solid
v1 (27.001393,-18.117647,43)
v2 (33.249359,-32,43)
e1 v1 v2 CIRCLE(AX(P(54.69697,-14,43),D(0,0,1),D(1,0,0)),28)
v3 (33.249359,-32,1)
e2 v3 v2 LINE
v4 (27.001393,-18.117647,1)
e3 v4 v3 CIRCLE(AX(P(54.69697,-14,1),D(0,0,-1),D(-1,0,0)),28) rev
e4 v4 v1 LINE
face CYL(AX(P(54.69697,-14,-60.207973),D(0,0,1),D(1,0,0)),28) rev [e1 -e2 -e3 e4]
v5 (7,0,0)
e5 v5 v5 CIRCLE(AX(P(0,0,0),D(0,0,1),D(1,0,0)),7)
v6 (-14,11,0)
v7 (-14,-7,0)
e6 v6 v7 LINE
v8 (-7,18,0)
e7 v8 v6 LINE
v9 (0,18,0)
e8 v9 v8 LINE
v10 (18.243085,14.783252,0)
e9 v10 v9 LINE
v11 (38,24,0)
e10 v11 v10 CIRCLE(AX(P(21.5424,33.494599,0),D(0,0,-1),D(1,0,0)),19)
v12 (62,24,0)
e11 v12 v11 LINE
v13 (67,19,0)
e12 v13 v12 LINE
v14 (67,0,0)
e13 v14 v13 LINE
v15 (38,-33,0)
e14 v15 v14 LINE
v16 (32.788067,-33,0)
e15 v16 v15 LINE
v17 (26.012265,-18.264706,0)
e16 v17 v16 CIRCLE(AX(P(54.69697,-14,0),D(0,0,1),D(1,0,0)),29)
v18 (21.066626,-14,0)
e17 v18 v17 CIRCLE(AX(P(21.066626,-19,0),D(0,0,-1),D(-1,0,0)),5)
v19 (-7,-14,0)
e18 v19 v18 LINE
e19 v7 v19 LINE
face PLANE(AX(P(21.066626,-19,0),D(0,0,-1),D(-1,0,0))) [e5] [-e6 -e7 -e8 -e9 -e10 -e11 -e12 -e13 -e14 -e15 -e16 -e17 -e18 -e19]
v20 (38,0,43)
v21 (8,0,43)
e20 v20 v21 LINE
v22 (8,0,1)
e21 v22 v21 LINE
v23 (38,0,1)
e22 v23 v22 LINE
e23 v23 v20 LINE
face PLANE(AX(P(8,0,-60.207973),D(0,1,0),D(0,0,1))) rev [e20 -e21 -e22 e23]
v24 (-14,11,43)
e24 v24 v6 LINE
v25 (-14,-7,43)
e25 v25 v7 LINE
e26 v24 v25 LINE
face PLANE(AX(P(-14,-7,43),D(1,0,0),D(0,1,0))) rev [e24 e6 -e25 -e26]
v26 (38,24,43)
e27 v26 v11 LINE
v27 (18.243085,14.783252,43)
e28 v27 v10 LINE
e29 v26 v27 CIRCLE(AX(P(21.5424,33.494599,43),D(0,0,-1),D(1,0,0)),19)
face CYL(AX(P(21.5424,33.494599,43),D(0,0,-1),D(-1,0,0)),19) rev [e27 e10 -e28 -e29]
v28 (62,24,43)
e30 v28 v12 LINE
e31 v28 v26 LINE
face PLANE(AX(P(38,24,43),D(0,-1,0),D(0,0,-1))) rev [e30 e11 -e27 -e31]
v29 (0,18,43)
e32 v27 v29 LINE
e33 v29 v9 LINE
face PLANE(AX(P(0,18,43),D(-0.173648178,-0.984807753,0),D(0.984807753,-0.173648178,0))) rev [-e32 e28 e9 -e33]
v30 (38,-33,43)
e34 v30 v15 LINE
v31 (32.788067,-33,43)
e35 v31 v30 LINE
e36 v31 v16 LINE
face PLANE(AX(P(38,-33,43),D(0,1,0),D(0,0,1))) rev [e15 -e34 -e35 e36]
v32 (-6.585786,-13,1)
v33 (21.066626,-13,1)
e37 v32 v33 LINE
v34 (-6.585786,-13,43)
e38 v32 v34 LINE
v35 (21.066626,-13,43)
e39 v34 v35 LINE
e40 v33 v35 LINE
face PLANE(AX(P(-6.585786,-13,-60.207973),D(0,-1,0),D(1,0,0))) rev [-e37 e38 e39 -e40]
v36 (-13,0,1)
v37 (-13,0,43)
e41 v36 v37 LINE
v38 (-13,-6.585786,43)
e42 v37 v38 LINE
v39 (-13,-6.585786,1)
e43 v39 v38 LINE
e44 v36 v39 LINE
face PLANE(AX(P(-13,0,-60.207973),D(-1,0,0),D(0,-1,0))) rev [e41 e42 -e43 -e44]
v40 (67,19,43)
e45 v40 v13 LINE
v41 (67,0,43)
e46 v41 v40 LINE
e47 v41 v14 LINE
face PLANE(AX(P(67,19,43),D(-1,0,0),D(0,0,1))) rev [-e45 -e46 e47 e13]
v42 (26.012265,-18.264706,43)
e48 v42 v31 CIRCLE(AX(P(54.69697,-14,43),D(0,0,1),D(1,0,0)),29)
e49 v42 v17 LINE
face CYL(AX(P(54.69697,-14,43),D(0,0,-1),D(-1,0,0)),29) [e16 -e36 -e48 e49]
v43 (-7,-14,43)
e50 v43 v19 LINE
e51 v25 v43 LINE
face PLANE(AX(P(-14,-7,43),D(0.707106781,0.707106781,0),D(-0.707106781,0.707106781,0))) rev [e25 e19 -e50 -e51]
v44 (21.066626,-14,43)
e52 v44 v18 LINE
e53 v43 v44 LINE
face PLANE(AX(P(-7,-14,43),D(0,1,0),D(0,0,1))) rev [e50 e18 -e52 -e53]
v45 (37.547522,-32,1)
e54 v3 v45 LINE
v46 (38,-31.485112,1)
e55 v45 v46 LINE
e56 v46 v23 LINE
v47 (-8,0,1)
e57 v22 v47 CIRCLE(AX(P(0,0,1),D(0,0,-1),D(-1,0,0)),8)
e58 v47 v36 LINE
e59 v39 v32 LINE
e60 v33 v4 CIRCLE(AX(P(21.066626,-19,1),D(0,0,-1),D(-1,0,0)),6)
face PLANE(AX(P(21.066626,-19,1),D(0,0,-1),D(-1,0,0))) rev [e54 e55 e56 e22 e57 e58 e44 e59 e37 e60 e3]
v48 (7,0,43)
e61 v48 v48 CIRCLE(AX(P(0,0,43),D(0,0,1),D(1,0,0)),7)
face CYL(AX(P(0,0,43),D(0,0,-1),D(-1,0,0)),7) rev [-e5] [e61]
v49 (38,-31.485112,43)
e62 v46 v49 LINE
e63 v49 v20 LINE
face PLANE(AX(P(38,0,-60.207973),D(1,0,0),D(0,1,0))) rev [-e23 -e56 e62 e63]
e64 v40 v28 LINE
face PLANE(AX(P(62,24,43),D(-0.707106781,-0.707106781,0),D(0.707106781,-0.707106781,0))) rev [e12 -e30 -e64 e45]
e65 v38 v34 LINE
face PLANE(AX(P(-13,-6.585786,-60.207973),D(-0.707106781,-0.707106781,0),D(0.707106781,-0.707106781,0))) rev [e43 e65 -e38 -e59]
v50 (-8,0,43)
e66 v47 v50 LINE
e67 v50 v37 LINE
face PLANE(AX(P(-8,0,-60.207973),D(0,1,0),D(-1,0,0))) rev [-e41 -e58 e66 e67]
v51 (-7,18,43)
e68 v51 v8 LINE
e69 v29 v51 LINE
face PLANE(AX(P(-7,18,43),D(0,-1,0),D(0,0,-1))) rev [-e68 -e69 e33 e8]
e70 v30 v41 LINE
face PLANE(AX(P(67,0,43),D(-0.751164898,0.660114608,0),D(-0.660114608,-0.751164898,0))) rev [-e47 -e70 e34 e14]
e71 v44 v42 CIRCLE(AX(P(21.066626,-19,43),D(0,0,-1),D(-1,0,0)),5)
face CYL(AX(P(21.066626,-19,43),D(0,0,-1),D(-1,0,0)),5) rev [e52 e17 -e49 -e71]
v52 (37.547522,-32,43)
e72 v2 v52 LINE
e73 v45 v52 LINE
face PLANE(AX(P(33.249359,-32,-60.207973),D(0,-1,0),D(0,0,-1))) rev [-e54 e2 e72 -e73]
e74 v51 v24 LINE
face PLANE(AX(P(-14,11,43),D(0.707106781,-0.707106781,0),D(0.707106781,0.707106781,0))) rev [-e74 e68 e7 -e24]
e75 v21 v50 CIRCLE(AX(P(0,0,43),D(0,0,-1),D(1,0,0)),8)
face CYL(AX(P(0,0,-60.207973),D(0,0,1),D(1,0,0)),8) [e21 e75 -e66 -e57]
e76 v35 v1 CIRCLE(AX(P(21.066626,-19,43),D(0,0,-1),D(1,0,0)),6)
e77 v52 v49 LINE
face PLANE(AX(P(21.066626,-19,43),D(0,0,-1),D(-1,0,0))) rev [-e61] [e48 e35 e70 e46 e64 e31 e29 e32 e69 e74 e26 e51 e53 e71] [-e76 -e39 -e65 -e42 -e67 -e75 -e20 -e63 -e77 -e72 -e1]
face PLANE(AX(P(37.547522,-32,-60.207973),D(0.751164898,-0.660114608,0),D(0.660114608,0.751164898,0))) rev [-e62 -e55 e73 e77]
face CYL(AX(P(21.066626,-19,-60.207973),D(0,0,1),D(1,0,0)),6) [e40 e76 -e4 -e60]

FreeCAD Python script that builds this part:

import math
import FreeCAD as App
import Part
import Sketcher
Q = App.Units.Quantity

doc = App.newDocument("Part")
body = doc.addObject("PartDesign::Body", "Body")

# Sketch on XY plane
sketch1 = body.newObject("Sketcher::SketchObject", "Sketch")
sketch1.AttachmentSupport = (doc.getObject("XY_Plane"), [""])
sketch1.MapMode = "FlatFace"
sketch1.addGeometry([
    Part.LineSegment(App.Vector(-14, 11, 0), App.Vector(-14, -7, 0)),  # 0
    Part.LineSegment(App.Vector(-14, -7, 0), App.Vector(-7, -14, 0)),  # 1
    Part.LineSegment(App.Vector(-7, -14, 0), App.Vector(21, -14, 0)),  # 2
    Part.ArcOfCircle(Part.Circle(App.Vector(21, -19, 0), App.Vector(0, 0, 1), 5), math.radians(8), math.radians(90)),  # 3
    Part.ArcOfCircle(Part.Circle(App.Vector(55, -14, 0), App.Vector(0, 0, 1), 29), math.radians(-172), math.radians(-139)),  # 4
    Part.LineSegment(App.Vector(33, -33, 0), App.Vector(38, -33, 0)),  # 5
    Part.LineSegment(App.Vector(38, -33, 0), App.Vector(67, 0, 0)),  # 6
    Part.LineSegment(App.Vector(67, 0, 0), App.Vector(67, 19, 0)),  # 7
    Part.LineSegment(App.Vector(67, 19, 0), App.Vector(62, 24, 0)),  # 8
    Part.LineSegment(App.Vector(62, 24, 0), App.Vector(38, 24, 0)),  # 9
    Part.ArcOfCircle(Part.Circle(App.Vector(22, 33, 0), App.Vector(0, 0, 1), 19), math.radians(-100), math.radians(-30)),  # 10
    Part.LineSegment(App.Vector(18, 15, 0), App.Vector(0, 18, 0)),  # 11
    Part.LineSegment(App.Vector(0, 18, 0), App.Vector(-7, 18, 0)),  # 12
    Part.LineSegment(App.Vector(-7, 18, 0), App.Vector(-14, 11, 0)),  # 13
    Part.Circle(App.Vector(0, 0, 0), App.Vector(0, 0, 1), 7),  # 14
], False)
sketch1.addConstraint([
    Sketcher.Constraint("Coincident", 0, 2, 1, 1),
    Sketcher.Constraint("Coincident", 1, 2, 2, 1),
    Sketcher.Constraint("Tangent", 2, 2, 3, 2),
    Sketcher.Constraint("Tangent", 3, 1, 4, 1),
    Sketcher.Constraint("Coincident", 4, 2, 5, 1),
    Sketcher.Constraint("Coincident", 5, 2, 6, 1),
    Sketcher.Constraint("Coincident", 6, 2, 7, 1),
    Sketcher.Constraint("Coincident", 7, 2, 8, 1),
    Sketcher.Constraint("Coincident", 8, 2, 9, 1),
    Sketcher.Constraint("Coincident", 9, 2, 10, 2),
    Sketcher.Constraint("Tangent", 10, 1, 11, 1),
    Sketcher.Constraint("Coincident", 11, 2, 12, 1),
    Sketcher.Constraint("Coincident", 12, 2, 13, 1),
    Sketcher.Constraint("Coincident", 13, 2, 0, 1),
    Sketcher.Constraint("Vertical", 0),
    Sketcher.Constraint("Horizontal", 2),
    Sketcher.Constraint("Horizontal", 5),
    Sketcher.Constraint("Vertical", 7),
    Sketcher.Constraint("Horizontal", 9),
    Sketcher.Constraint("Horizontal", 12),
    Sketcher.Constraint("Coincident", 14, 3, -1, 1),
    Sketcher.Constraint("PointOnObject", 6, 2, -1),
    Sketcher.Constraint("PointOnObject", 11, 2, -2),
    Sketcher.Constraint("Parallel", 1, 8),
    Sketcher.Constraint("Perpendicular", 8, 13),
    Sketcher.Constraint("Horizontal", 4, 3, 1, 2),
    Sketcher.Constraint("Vertical", 5, 2, 9, 2),
    Sketcher.Constraint("Vertical", 1, 2, 12, 2),
    Sketcher.Constraint("Equal", 1, 13),
    Sketcher.Constraint("Diameter", 14, Q("14 mm")),
    Sketcher.Constraint("Radius", 3, Q("5 mm")),
    Sketcher.Constraint("Radius", 4, Q("29 mm")),
    Sketcher.Constraint("Radius", 10, Q("19 mm")),
    Sketcher.Constraint("DistanceX", 9, 2, 9, 1, Q("24 mm")),
    Sketcher.Constraint("DistanceX", 12, 2, 12, 1, Q("7 mm")),
    Sketcher.Constraint("DistanceY", 0, 2, 0, 1, Q("18 mm")),
    Sketcher.Constraint("DistanceY", 7, 1, 7, 2, Q("19 mm")),
    Sketcher.Constraint("Angle", 11, Q("170 deg")),
    Sketcher.Constraint("DistanceY", 3, 3, -1, 1, Q("19 mm")),
    Sketcher.Constraint("DistanceX", 0, 2, -1, 1, Q("14 mm")),
    Sketcher.Constraint("DistanceY", 4, 2, -1, 1, Q("33 mm")),
    Sketcher.Constraint("DistanceX", -1, 1, 5, 2, Q("38 mm")),
    Sketcher.Constraint("DistanceX", -1, 1, 6, 2, Q("67 mm")),
    Sketcher.Constraint("DistanceX", 2, 1, 2, 2, Q("28.066626 mm")),
])
pad1 = body.newObject("PartDesign::Pad", "Pad")
pad1.Profile = sketch1
pad1.Length = 43

# Sketch on XY plane
sketch2 = body.newObject("Sketcher::SketchObject", "Sketch001")
sketch2.AttachmentSupport = (doc.getObject("XY_Plane"), [""])
sketch2.MapMode = "FlatFace"
sketch2.AttachmentOffset = App.Placement(App.Vector(0, 0, 43), App.Rotation())
sketch2.addGeometry([
    Part.LineSegment(App.Vector(38, 0, 0), App.Vector(8, 0, 0)),  # 0
    Part.ArcOfCircle(Part.Circle(App.Vector(0, 0, 0), App.Vector(0, 0, 1), 8), math.radians(180), math.radians(360)),  # 1
    Part.LineSegment(App.Vector(-8, 0, 0), App.Vector(-13, 0, 0)),  # 2
    Part.LineSegment(App.Vector(-13, 0, 0), App.Vector(-13, -6.6, 0)),  # 3
    Part.LineSegment(App.Vector(-13, -6.6, 0), App.Vector(-6.6, -13, 0)),  # 4
    Part.LineSegment(App.Vector(-6.6, -13, 0), App.Vector(21.1, -13, 0)),  # 5
    Part.ArcOfCircle(Part.Circle(App.Vector(21.1, -19, 0), App.Vector(0, 0, 1), 6), math.radians(8), math.radians(90)),  # 6
    Part.ArcOfCircle(Part.Circle(App.Vector(54.7, -14, 0), App.Vector(0, 0, 1), 28), math.radians(-172), math.radians(-140)),  # 7
    Part.LineSegment(App.Vector(33.2, -32, 0), App.Vector(37.5, -32, 0)),  # 8
    Part.LineSegment(App.Vector(37.5, -32, 0), App.Vector(38, -31.5, 0)),  # 9
    Part.LineSegment(App.Vector(38, -31.5, 0), App.Vector(38, 0, 0)),  # 10
], False)
sketch2.addConstraint([
    Sketcher.Constraint("Coincident", 0, 2, 1, 2),
    Sketcher.Constraint("Coincident", 1, 1, 2, 1),
    Sketcher.Constraint("Coincident", 2, 2, 3, 1),
    Sketcher.Constraint("Coincident", 3, 2, 4, 1),
    Sketcher.Constraint("Coincident", 4, 2, 5, 1),
    Sketcher.Constraint("Tangent", 5, 2, 6, 2),
    Sketcher.Constraint("Tangent", 6, 1, 7, 1),
    Sketcher.Constraint("Coincident", 7, 2, 8, 1),
    Sketcher.Constraint("Coincident", 8, 2, 9, 1),
    Sketcher.Constraint("Coincident", 9, 2, 10, 1),
    Sketcher.Constraint("Coincident", 10, 2, 0, 1),
    Sketcher.Constraint("Horizontal", 0),
    Sketcher.Constraint("Horizontal", 2),
    Sketcher.Constraint("Vertical", 3),
    Sketcher.Constraint("Horizontal", 5),
    Sketcher.Constraint("Horizontal", 8),
    Sketcher.Constraint("Vertical", 10),
    Sketcher.Constraint("Coincident", 1, 3, -1, 1),
    Sketcher.Constraint("PointOnObject", 0, 2, -1),
    Sketcher.Constraint("PointOnObject", 1, 1, -1),
    Sketcher.Constraint("Radius", 1, Q("8 mm")),
    Sketcher.Constraint("Radius", 6, Q("6 mm")),
    Sketcher.Constraint("Radius", 7, Q("28 mm")),
    Sketcher.Constraint("DistanceX", 0, 2, 0, 1, Q("30 mm")),
    Sketcher.Constraint("DistanceX", 2, 2, 2, 1, Q("5 mm")),
    Sketcher.Constraint("Angle", 4, Q("-45 deg")),
    Sketcher.Constraint("DistanceY", 6, 3, -1, 1, Q("19 mm")),
    Sketcher.Constraint("DistanceY", 7, 3, -1, 1, Q("14 mm")),
    Sketcher.Constraint("DistanceY", 7, 2, -1, 1, Q("32 mm")),
    Sketcher.Constraint("DistanceY", 10, 1, 10, 2, Q("31.485112 mm")),
    Sketcher.Constraint("DistanceX", 5, 1, 5, 2, Q("27.652413 mm")),
    Sketcher.Constraint("DistanceX", 8, 1, 8, 2, Q("4.298163 mm")),
    Sketcher.Constraint("DistanceY", 3, 2, 3, 1, Q("6.585786 mm")),
])
pocket1 = body.newObject("PartDesign::Pocket", "Pocket")
pocket1.Profile = sketch2
pocket1.Length = 42

doc.recompute()
